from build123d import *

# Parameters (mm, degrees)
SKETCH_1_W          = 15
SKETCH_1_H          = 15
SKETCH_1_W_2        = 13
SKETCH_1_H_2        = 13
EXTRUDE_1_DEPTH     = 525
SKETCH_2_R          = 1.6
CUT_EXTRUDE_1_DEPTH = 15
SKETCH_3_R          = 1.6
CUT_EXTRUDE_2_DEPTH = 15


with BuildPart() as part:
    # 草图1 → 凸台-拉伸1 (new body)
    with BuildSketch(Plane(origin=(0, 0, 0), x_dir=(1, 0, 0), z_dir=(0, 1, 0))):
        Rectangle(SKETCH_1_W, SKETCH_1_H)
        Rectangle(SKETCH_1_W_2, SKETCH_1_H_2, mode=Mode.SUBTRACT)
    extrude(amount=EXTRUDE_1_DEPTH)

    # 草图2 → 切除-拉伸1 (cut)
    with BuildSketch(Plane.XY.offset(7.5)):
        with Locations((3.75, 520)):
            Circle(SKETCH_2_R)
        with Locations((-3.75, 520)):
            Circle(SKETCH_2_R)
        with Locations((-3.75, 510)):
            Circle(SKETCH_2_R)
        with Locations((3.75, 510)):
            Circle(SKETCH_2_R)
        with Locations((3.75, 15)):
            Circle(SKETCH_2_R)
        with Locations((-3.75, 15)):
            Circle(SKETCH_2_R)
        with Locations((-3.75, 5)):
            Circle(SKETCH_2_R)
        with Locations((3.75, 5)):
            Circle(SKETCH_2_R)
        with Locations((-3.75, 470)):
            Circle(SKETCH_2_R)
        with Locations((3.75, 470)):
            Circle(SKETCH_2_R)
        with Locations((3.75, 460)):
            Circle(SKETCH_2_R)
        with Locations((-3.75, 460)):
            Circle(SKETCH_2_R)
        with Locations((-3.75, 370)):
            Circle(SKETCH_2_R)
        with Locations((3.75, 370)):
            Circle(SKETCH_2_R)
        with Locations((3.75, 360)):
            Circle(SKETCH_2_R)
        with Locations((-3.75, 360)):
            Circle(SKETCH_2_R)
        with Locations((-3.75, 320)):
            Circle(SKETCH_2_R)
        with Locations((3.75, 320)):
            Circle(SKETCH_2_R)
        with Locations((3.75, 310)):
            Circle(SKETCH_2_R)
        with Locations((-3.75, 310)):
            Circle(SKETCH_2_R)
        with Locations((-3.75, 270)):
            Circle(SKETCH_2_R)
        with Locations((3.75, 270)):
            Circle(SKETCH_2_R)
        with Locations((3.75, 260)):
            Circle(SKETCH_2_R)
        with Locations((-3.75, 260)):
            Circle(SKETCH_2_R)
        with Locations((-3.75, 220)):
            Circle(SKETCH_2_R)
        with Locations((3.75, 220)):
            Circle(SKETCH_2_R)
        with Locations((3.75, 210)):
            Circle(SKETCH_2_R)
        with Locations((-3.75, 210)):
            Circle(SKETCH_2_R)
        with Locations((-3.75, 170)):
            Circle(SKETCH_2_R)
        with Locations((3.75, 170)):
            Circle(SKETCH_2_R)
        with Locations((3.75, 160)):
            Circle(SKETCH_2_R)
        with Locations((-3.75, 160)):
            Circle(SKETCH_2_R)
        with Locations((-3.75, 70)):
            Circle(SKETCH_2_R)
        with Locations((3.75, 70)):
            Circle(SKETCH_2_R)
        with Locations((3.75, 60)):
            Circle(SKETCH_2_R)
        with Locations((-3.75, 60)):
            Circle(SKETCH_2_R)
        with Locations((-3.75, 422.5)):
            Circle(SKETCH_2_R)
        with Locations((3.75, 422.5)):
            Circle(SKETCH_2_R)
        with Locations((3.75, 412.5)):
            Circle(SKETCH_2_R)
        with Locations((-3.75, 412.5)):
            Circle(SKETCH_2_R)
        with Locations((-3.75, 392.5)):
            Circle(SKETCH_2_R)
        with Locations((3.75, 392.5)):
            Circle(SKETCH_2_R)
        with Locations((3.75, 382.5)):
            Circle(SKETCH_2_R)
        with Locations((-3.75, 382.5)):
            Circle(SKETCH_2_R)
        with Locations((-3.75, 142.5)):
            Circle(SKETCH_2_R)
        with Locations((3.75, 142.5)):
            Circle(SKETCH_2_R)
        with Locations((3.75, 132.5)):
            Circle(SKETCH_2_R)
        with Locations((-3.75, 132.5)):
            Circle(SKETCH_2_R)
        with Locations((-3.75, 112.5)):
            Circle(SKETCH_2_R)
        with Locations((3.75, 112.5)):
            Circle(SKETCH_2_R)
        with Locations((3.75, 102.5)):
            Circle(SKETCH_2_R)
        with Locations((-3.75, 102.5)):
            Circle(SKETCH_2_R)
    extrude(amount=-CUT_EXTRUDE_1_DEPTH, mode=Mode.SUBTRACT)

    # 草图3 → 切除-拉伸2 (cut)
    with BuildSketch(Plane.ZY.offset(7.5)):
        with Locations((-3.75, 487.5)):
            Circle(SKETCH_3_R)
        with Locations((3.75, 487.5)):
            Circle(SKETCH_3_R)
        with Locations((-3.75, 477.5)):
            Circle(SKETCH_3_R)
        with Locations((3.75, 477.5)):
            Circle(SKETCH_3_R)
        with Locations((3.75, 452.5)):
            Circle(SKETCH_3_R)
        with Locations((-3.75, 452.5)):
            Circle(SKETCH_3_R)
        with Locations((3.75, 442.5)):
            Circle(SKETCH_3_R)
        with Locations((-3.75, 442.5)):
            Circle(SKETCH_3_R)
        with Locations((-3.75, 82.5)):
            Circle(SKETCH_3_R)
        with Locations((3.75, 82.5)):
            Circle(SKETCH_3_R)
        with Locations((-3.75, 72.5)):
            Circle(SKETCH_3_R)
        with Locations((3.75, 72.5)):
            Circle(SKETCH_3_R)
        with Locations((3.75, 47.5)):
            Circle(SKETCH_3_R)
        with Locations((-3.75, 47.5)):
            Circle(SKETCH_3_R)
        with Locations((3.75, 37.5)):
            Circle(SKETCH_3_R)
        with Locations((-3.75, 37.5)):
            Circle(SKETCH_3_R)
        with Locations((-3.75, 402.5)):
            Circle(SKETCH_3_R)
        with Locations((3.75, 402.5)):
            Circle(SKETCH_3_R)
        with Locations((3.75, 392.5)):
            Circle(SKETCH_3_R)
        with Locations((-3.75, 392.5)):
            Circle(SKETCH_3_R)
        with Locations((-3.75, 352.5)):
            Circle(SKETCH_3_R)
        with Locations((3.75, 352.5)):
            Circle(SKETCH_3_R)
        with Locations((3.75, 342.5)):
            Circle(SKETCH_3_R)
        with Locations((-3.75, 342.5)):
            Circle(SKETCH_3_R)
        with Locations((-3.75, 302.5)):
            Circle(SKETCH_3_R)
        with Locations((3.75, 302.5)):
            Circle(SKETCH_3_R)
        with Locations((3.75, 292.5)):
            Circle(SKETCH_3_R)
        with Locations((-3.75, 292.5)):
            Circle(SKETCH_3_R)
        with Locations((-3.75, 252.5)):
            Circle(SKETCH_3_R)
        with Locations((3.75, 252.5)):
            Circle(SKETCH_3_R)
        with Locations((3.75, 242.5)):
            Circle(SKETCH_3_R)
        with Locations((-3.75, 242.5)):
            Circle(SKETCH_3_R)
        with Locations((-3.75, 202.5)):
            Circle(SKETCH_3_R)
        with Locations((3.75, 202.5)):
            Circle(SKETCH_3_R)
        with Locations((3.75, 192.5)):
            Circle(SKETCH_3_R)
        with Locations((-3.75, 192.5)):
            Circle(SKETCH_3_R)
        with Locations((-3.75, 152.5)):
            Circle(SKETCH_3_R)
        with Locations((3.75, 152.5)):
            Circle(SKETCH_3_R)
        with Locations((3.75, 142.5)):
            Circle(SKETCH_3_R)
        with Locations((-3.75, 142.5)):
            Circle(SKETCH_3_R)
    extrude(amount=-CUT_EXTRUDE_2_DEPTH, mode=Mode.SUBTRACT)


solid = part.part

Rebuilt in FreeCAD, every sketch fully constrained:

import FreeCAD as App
import Part
import Sketcher
from FreeCAD import Vector


def add_polygon(sketch, points):
    """Adds a closed chain of lines whose ends are joined by coincident constraints."""
    first, n = sketch.GeometryCount, len(points)
    for a, b in zip(points, points[1:] + points[:1]):
        sketch.addGeometry(Part.LineSegment(App.Vector(*a, 0), App.Vector(*b, 0)), False)
    for i in range(n):
        sketch.addConstraint(Sketcher.Constraint("Coincident", first + i, 2, first + (i + 1) % n, 1))

doc = App.newDocument("Part")
body = doc.addObject("PartDesign::Body", "Body")

sketch1 = doc.addObject("Sketcher::SketchObject", "Sketch")
body.addObject(sketch1)
sketch1.AttachmentSupport = (doc.XZ_Plane, [""])
sketch1.MapMode = "FlatFace"
add_polygon(sketch1, [(-8, -8), (-8, 8), (8, 8), (8, -8)])
add_polygon(sketch1, [(6, 6), (-6, 6), (-6, -6), (6, -6)])
sketch1.addConstraint([
    Sketcher.Constraint("Vertical", 0),
    Sketcher.Constraint("Horizontal", 1),
    Sketcher.Constraint("Vertical", 2),
    Sketcher.Constraint("Horizontal", 3),
    Sketcher.Constraint("Horizontal", 4),
    Sketcher.Constraint("Vertical", 5),
    Sketcher.Constraint("Horizontal", 6),
    Sketcher.Constraint("Vertical", 7),
    Sketcher.Constraint("Symmetric", 0, 2, 2, 2, -1, 1),
    Sketcher.Constraint("Symmetric", 4, 2, 6, 2, -1, 1),
    Sketcher.Constraint("Equal", 3, 0),
    Sketcher.Constraint("Equal", 6, 5),
    Sketcher.Constraint("DistanceX", 1, 1, 1, 2, 15.0),
    Sketcher.Constraint("DistanceX", 4, 2, 4, 1, 13.0),
])
pad1 = doc.addObject("PartDesign::Pad", "Pad")
body.addObject(pad1)
pad1.Profile = sketch1
pad1.Length = 525
pad1.Reversed = True

sketch2 = doc.addObject("Sketcher::SketchObject", "Sketch001")
body.addObject(sketch2)
sketch2.AttachmentSupport = (doc.XY_Plane, [""])
sketch2.MapMode = "FlatFace"
sketch2.AttachmentOffset = App.Placement(Vector(0, 0, 7.5), App.Rotation())
sketch2.addGeometry([
    Part.Circle(Vector(3.8, 520, 0), Vector(0, 0, 1), 1.6),
    Part.Circle(Vector(-3.8, 520, 0), Vector(0, 0, 1), 1.6),
    Part.Circle(Vector(-3.8, 510, 0), Vector(0, 0, 1), 1.6),
    Part.Circle(Vector(3.8, 510, 0), Vector(0, 0, 1), 1.6),
    Part.Circle(Vector(3.8, 15, 0), Vector(0, 0, 1), 1.6),
    Part.Circle(Vector(-3.8, 15, 0), Vector(0, 0, 1), 1.6),
    Part.Circle(Vector(-3.8, 5, 0), Vector(0, 0, 1), 1.6),
    Part.Circle(Vector(3.8, 5, 0), Vector(0, 0, 1), 1.6),
    Part.Circle(Vector(-3.8, 470, 0), Vector(0, 0, 1), 1.6),
    Part.Circle(Vector(3.8, 470, 0), Vector(0, 0, 1), 1.6),
    Part.Circle(Vector(3.8, 460, 0), Vector(0, 0, 1), 1.6),
    Part.Circle(Vector(-3.8, 460, 0), Vector(0, 0, 1), 1.6),
    Part.Circle(Vector(-3.8, 370, 0), Vector(0, 0, 1), 1.6),
    Part.Circle(Vector(3.8, 370, 0), Vector(0, 0, 1), 1.6),
    Part.Circle(Vector(3.8, 360, 0), Vector(0, 0, 1), 1.6),
    Part.Circle(Vector(-3.8, 360, 0), Vector(0, 0, 1), 1.6),
    Part.Circle(Vector(-3.8, 320, 0), Vector(0, 0, 1), 1.6),
    Part.Circle(Vector(3.8, 320, 0), Vector(0, 0, 1), 1.6),
    Part.Circle(Vector(3.8, 310, 0), Vector(0, 0, 1), 1.6),
    Part.Circle(Vector(-3.8, 310, 0), Vector(0, 0, 1), 1.6),
    Part.Circle(Vector(-3.8, 270, 0), Vector(0, 0, 1), 1.6),
    Part.Circle(Vector(3.8, 270, 0), Vector(0, 0, 1), 1.6),
    Part.Circle(Vector(3.8, 260, 0), Vector(0, 0, 1), 1.6),
    Part.Circle(Vector(-3.8, 260, 0), Vector(0, 0, 1), 1.6),
    Part.Circle(Vector(-3.8, 220, 0), Vector(0, 0, 1), 1.6),
    Part.Circle(Vector(3.8, 220, 0), Vector(0, 0, 1), 1.6),
    Part.Circle(Vector(3.8, 210, 0), Vector(0, 0, 1), 1.6),
    Part.Circle(Vector(-3.8, 210, 0), Vector(0, 0, 1), 1.6),
    Part.Circle(Vector(-3.8, 170, 0), Vector(0, 0, 1), 1.6),
    Part.Circle(Vector(3.8, 170, 0), Vector(0, 0, 1), 1.6),
    Part.Circle(Vector(3.8, 160, 0), Vector(0, 0, 1), 1.6),
    Part.Circle(Vector(-3.8, 160, 0), Vector(0, 0, 1), 1.6),
    Part.Circle(Vector(-3.8, 70, 0), Vector(0, 0, 1), 1.6),
    Part.Circle(Vector(3.8, 70, 0), Vector(0, 0, 1), 1.6),
    Part.Circle(Vector(3.8, 60, 0), Vector(0, 0, 1), 1.6),
    Part.Circle(Vector(-3.8, 60, 0), Vector(0, 0, 1), 1.6),
    Part.Circle(Vector(-3.8, 422.5, 0), Vector(0, 0, 1), 1.6),
    Part.Circle(Vector(3.8, 422.5, 0), Vector(0, 0, 1), 1.6),
    Part.Circle(Vector(3.8, 412.5, 0), Vector(0, 0, 1), 1.6),
    Part.Circle(Vector(-3.8, 412.5, 0), Vector(0, 0, 1), 1.6),
    Part.Circle(Vector(-3.8, 392.5, 0), Vector(0, 0, 1), 1.6),
    Part.Circle(Vector(3.8, 392.5, 0), Vector(0, 0, 1), 1.6),
    Part.Circle(Vector(3.8, 382.5, 0), Vector(0, 0, 1), 1.6),
    Part.Circle(Vector(-3.8, 382.5, 0), Vector(0, 0, 1), 1.6),
    Part.Circle(Vector(-3.8, 142.5, 0), Vector(0, 0, 1), 1.6),
    Part.Circle(Vector(3.8, 142.5, 0), Vector(0, 0, 1), 1.6),
    Part.Circle(Vector(3.8, 132.5, 0), Vector(0, 0, 1), 1.6),
    Part.Circle(Vector(-3.8, 132.5, 0), Vector(0, 0, 1), 1.6),
    Part.Circle(Vector(-3.8, 112.5, 0), Vector(0, 0, 1), 1.6),
    Part.Circle(Vector(3.8, 112.5, 0), Vector(0, 0, 1), 1.6),
    Part.Circle(Vector(3.8, 102.5, 0), Vector(0, 0, 1), 1.6),
    Part.Circle(Vector(-3.8, 102.5, 0), Vector(0, 0, 1), 1.6),
], False)
sketch2.addConstraint([
    Sketcher.Constraint("Equal", 0, 1),
    Sketcher.Constraint("Equal", 1, 2),
    Sketcher.Constraint("Equal", 2, 3),
    Sketcher.Constraint("Equal", 3, 4),
    Sketcher.Constraint("Equal", 4, 5),
    Sketcher.Constraint("Equal", 5, 6),
    Sketcher.Constraint("Equal", 6, 7),
    Sketcher.Constraint("Equal", 7, 8),
    Sketcher.Constraint("Equal", 8, 9),
    Sketcher.Constraint("Equal", 9, 10),
    Sketcher.Constraint("Equal", 10, 11),
    Sketcher.Constraint("Equal", 11, 12),
    Sketcher.Constraint("Equal", 12, 13),
    Sketcher.Constraint("Equal", 13, 14),
    Sketcher.Constraint("Equal", 14, 15),
    Sketcher.Constraint("Equal", 15, 16),
    Sketcher.Constraint("Equal", 16, 17),
    Sketcher.Constraint("Equal", 17, 18),
    Sketcher.Constraint("Equal", 18, 19),
    Sketcher.Constraint("Equal", 19, 20),
    Sketcher.Constraint("Equal", 20, 21),
    Sketcher.Constraint("Equal", 21, 22),
    Sketcher.Constraint("Equal", 22, 23),
    Sketcher.Constraint("Equal", 23, 24),
    Sketcher.Constraint("Equal", 24, 25),
    Sketcher.Constraint("Equal", 25, 26),
    Sketcher.Constraint("Equal", 26, 27),
    Sketcher.Constraint("Equal", 27, 28),
    Sketcher.Constraint("Equal", 28, 29),
    Sketcher.Constraint("Equal", 29, 30),
    Sketcher.Constraint("Equal", 30, 31),
    Sketcher.Constraint("Equal", 31, 32),
    Sketcher.Constraint("Equal", 32, 33),
    Sketcher.Constraint("Equal", 33, 34),
    Sketcher.Constraint("Equal", 34, 35),
    Sketcher.Constraint("Equal", 35, 36),
    Sketcher.Constraint("Equal", 36, 37),
    Sketcher.Constraint("Equal", 37, 38),
    Sketcher.Constraint("Equal", 38, 39),
    Sketcher.Constraint("Equal", 39, 40),
    Sketcher.Constraint("Equal", 40, 41),
    Sketcher.Constraint("Equal", 41, 42),
    Sketcher.Constraint("Equal", 42, 43),
    Sketcher.Constraint("Equal", 43, 44),
    Sketcher.Constraint("Equal", 44, 45),
    Sketcher.Constraint("Equal", 45, 46),
    Sketcher.Constraint("Equal", 46, 47),
    Sketcher.Constraint("Equal", 47, 48),
    Sketcher.Constraint("Equal", 48, 49),
    Sketcher.Constraint("Equal", 49, 50),
    Sketcher.Constraint("Equal", 50, 51),
    Sketcher.Constraint("Symmetric", 0, 3, 1, 3, -2),
    Sketcher.Constraint("Symmetric", 2, 3, 3, 3, -2),
    Sketcher.Constraint("Symmetric", 4, 3, 5, 3, -2),
    Sketcher.Constraint("Symmetric", 6, 3, 7, 3, -2),
    Sketcher.Constraint("Symmetric", 8, 3, 9, 3, -2),
    Sketcher.Constraint("Symmetric", 10, 3, 11, 3, -2),
    Sketcher.Constraint("Symmetric", 12, 3, 13, 3, -2),
    Sketcher.Constraint("Symmetric", 14, 3, 15, 3, -2),
    Sketcher.Constraint("Symmetric", 16, 3, 17, 3, -2),
    Sketcher.Constraint("Symmetric", 18, 3, 19, 3, -2),
    Sketcher.Constraint("Symmetric", 20, 3, 21, 3, -2),
    Sketcher.Constraint("Symmetric", 22, 3, 23, 3, -2),
    Sketcher.Constraint("Symmetric", 24, 3, 25, 3, -2),
    Sketcher.Constraint("Symmetric", 26, 3, 27, 3, -2),
    Sketcher.Constraint("Symmetric", 28, 3, 29, 3, -2),
    Sketcher.Constraint("Symmetric", 30, 3, 31, 3, -2),
    Sketcher.Constraint("Symmetric", 32, 3, 33, 3, -2),
    Sketcher.Constraint("Symmetric", 34, 3, 35, 3, -2),
    Sketcher.Constraint("Symmetric", 36, 3, 37, 3, -2),
    Sketcher.Constraint("Symmetric", 38, 3, 39, 3, -2),
    Sketcher.Constraint("Symmetric", 40, 3, 41, 3, -2),
    Sketcher.Constraint("Symmetric", 42, 3, 43, 3, -2),
    Sketcher.Constraint("Symmetric", 44, 3, 45, 3, -2),
    Sketcher.Constraint("Symmetric", 46, 3, 47, 3, -2),
    Sketcher.Constraint("Symmetric", 48, 3, 49, 3, -2),
    Sketcher.Constraint("Symmetric", 50, 3, 51, 3, -2),
    Sketcher.Constraint("Vertical", 1, 3, 2, 3),
    Sketcher.Constraint("Vertical", 3, 3, 4, 3),
    Sketcher.Constraint("Vertical", 5, 3, 6, 3),
    Sketcher.Constraint("Vertical", 6, 3, 8, 3),
    Sketcher.Constraint("Vertical", 9, 3, 10, 3),
    Sketcher.Constraint("Vertical", 11, 3, 12, 3),
    Sketcher.Constraint("Vertical", 13, 3, 14, 3),
    Sketcher.Constraint("Vertical", 15, 3, 16, 3),
    Sketcher.Constraint("Vertical", 17, 3, 18, 3),
    Sketcher.Constraint("Vertical", 19, 3, 20, 3),
    Sketcher.Constraint("Vertical", 21, 3, 22, 3),
    Sketcher.Constraint("Vertical", 23, 3, 24, 3),
    Sketcher.Constraint("Vertical", 25, 3, 26, 3),
    Sketcher.Constraint("Vertical", 27, 3, 28, 3),
    Sketcher.Constraint("Vertical", 29, 3, 30, 3),
    Sketcher.Constraint("Vertical", 31, 3, 32, 3),
    Sketcher.Constraint("Vertical", 33, 3, 34, 3),
    Sketcher.Constraint("Vertical", 35, 3, 36, 3),
    Sketcher.Constraint("Vertical", 37, 3, 38, 3),
    Sketcher.Constraint("Vertical", 39, 3, 40, 3),
    Sketcher.Constraint("Vertical", 41, 3, 42, 3),
    Sketcher.Constraint("Vertical", 43, 3, 44, 3),
    Sketcher.Constraint("Vertical", 45, 3, 46, 3),
    Sketcher.Constraint("Vertical", 47, 3, 48, 3),
    Sketcher.Constraint("Vertical", 49, 3, 50, 3),
    Sketcher.Constraint("Diameter", 0, 3.2),
    Sketcher.Constraint("DistanceY", -1, 1, 0, 3, 520.0),
    Sketcher.Constraint("DistanceY", -1, 1, 2, 3, 510.0),
    Sketcher.Constraint("DistanceY", -1, 1, 4, 3, 15.0),
    Sketcher.Constraint("DistanceY", -1, 1, 6, 3, 5.0),
    Sketcher.Constraint("DistanceY", -1, 1, 8, 3, 470.0),
    Sketcher.Constraint("DistanceY", -1, 1, 10, 3, 460.0),
    Sketcher.Constraint("DistanceY", -1, 1, 12, 3, 370.0),
    Sketcher.Constraint("DistanceY", -1, 1, 14, 3, 360.0),
    Sketcher.Constraint("DistanceY", -1, 1, 16, 3, 320.0),
    Sketcher.Constraint("DistanceY", -1, 1, 18, 3, 310.0),
    Sketcher.Constraint("DistanceY", -1, 1, 20, 3, 270.0),
    Sketcher.Constraint("DistanceY", -1, 1, 22, 3, 260.0),
    Sketcher.Constraint("DistanceY", -1, 1, 24, 3, 220.0),
    Sketcher.Constraint("DistanceY", -1, 1, 26, 3, 210.0),
    Sketcher.Constraint("DistanceY", -1, 1, 28, 3, 170.0),
    Sketcher.Constraint("DistanceY", -1, 1, 30, 3, 160.0),
    Sketcher.Constraint("DistanceY", -1, 1, 32, 3, 70.0),
    Sketcher.Constraint("DistanceY", -1, 1, 34, 3, 60.0),
    Sketcher.Constraint("DistanceY", 38, 3, 37, 3, 10.0),
    Sketcher.Constraint("DistanceY", 40, 3, 39, 3, 20.0),
    Sketcher.Constraint("DistanceY", 42, 3, 41, 3, 10.0),
    Sketcher.Constraint("DistanceY", 46, 3, 45, 3, 10.0),
    Sketcher.Constraint("DistanceY", 48, 3, 47, 3, 20.0),
    Sketcher.Constraint("DistanceY", 50, 3, 49, 3, 10.0),
    Sketcher.Constraint("DistanceY", -1, 1, 36, 3, 422.5),
    Sketcher.Constraint("DistanceY", -1, 1, 44, 3, 142.5),
    Sketcher.Constraint("DistanceX", 1, 3, 0, 3, 7.5),
])
pocket1 = doc.addObject("PartDesign::Pocket", "Pocket")
body.addObject(pocket1)
pocket1.Profile = sketch2
pocket1.Length = 15

sketch3 = doc.addObject("Sketcher::SketchObject", "Sketch002")
body.addObject(sketch3)
sketch3.AttachmentSupport = (doc.YZ_Plane, [""])
sketch3.MapMode = "FlatFace"
sketch3.AttachmentOffset = App.Placement(Vector(0, 0, -7.5), App.Rotation())
sketch3.addGeometry([
    Part.Circle(Vector(487.5, -3.8, 0), Vector(0, 0, 1), 1.6),
    Part.Circle(Vector(487.5, 3.8, 0), Vector(0, 0, 1), 1.6),
    Part.Circle(Vector(477.5, -3.8, 0), Vector(0, 0, 1), 1.6),
    Part.Circle(Vector(477.5, 3.8, 0), Vector(0, 0, 1), 1.6),
    Part.Circle(Vector(452.5, 3.8, 0), Vector(0, 0, 1), 1.6),
    Part.Circle(Vector(452.5, -3.8, 0), Vector(0, 0, 1), 1.6),
    Part.Circle(Vector(442.5, 3.8, 0), Vector(0, 0, 1), 1.6),
    Part.Circle(Vector(442.5, -3.8, 0), Vector(0, 0, 1), 1.6),
    Part.Circle(Vector(82.5, -3.8, 0), Vector(0, 0, 1), 1.6),
    Part.Circle(Vector(82.5, 3.8, 0), Vector(0, 0, 1), 1.6),
    Part.Circle(Vector(72.5, -3.8, 0), Vector(0, 0, 1), 1.6),
    Part.Circle(Vector(72.5, 3.8, 0), Vector(0, 0, 1), 1.6),
    Part.Circle(Vector(47.5, 3.8, 0), Vector(0, 0, 1), 1.6),
    Part.Circle(Vector(47.5, -3.8, 0), Vector(0, 0, 1), 1.6),
    Part.Circle(Vector(37.5, 3.8, 0), Vector(0, 0, 1), 1.6),
    Part.Circle(Vector(37.5, -3.8, 0), Vector(0, 0, 1), 1.6),
    Part.Circle(Vector(402.5, -3.8, 0), Vector(0, 0, 1), 1.6),
    Part.Circle(Vector(402.5, 3.8, 0), Vector(0, 0, 1), 1.6),
    Part.Circle(Vector(392.5, 3.8, 0), Vector(0, 0, 1), 1.6),
    Part.Circle(Vector(392.5, -3.8, 0), Vector(0, 0, 1), 1.6),
    Part.Circle(Vector(352.5, -3.8, 0), Vector(0, 0, 1), 1.6),
    Part.Circle(Vector(352.5, 3.8, 0), Vector(0, 0, 1), 1.6),
    Part.Circle(Vector(342.5, 3.8, 0), Vector(0, 0, 1), 1.6),
    Part.Circle(Vector(342.5, -3.8, 0), Vector(0, 0, 1), 1.6),
    Part.Circle(Vector(302.5, -3.8, 0), Vector(0, 0, 1), 1.6),
    Part.Circle(Vector(302.5, 3.8, 0), Vector(0, 0, 1), 1.6),
    Part.Circle(Vector(292.5, 3.8, 0), Vector(0, 0, 1), 1.6),
    Part.Circle(Vector(292.5, -3.8, 0), Vector(0, 0, 1), 1.6),
    Part.Circle(Vector(252.5, -3.8, 0), Vector(0, 0, 1), 1.6),
    Part.Circle(Vector(252.5, 3.8, 0), Vector(0, 0, 1), 1.6),
    Part.Circle(Vector(242.5, 3.8, 0), Vector(0, 0, 1), 1.6),
    Part.Circle(Vector(242.5, -3.8, 0), Vector(0, 0, 1), 1.6),
    Part.Circle(Vector(202.5, -3.8, 0), Vector(0, 0, 1), 1.6),
    Part.Circle(Vector(202.5, 3.8, 0), Vector(0, 0, 1), 1.6),
    Part.Circle(Vector(192.5, 3.8, 0), Vector(0, 0, 1), 1.6),
    Part.Circle(Vector(192.5, -3.8, 0), Vector(0, 0, 1), 1.6),
    Part.Circle(Vector(152.5, -3.8, 0), Vector(0, 0, 1), 1.6),
    Part.Circle(Vector(152.5, 3.8, 0), Vector(0, 0, 1), 1.6),
    Part.Circle(Vector(142.5, 3.8, 0), Vector(0, 0, 1), 1.6),
    Part.Circle(Vector(142.5, -3.8, 0), Vector(0, 0, 1), 1.6),
], False)
sketch3.addConstraint([
    Sketcher.Constraint("Equal", 0, 1),
    Sketcher.Constraint("Equal", 1, 2),
    Sketcher.Constraint("Equal", 2, 3),
    Sketcher.Constraint("Equal", 3, 4),
    Sketcher.Constraint("Equal", 4, 5),
    Sketcher.Constraint("Equal", 5, 6),
    Sketcher.Constraint("Equal", 6, 7),
    Sketcher.Constraint("Equal", 7, 8),
    Sketcher.Constraint("Equal", 8, 9),
    Sketcher.Constraint("Equal", 9, 10),
    Sketcher.Constraint("Equal", 10, 11),
    Sketcher.Constraint("Equal", 11, 12),
    Sketcher.Constraint("Equal", 12, 13),
    Sketcher.Constraint("Equal", 13, 14),
    Sketcher.Constraint("Equal", 14, 15),
    Sketcher.Constraint("Equal", 15, 16),
    Sketcher.Constraint("Equal", 16, 17),
    Sketcher.Constraint("Equal", 17, 18),
    Sketcher.Constraint("Equal", 18, 19),
    Sketcher.Constraint("Equal", 19, 20),
    Sketcher.Constraint("Equal", 20, 21),
    Sketcher.Constraint("Equal", 21, 22),
    Sketcher.Constraint("Equal", 22, 23),
    Sketcher.Constraint("Equal", 23, 24),
    Sketcher.Constraint("Equal", 24, 25),
    Sketcher.Constraint("Equal", 25, 26),
    Sketcher.Constraint("Equal", 26, 27),
    Sketcher.Constraint("Equal", 27, 28),
    Sketcher.Constraint("Equal", 28, 29),
    Sketcher.Constraint("Equal", 29, 30),
    Sketcher.Constraint("Equal", 30, 31),
    Sketcher.Constraint("Equal", 31, 32),
    Sketcher.Constraint("Equal", 32, 33),
    Sketcher.Constraint("Equal", 33, 34),
    Sketcher.Constraint("Equal", 34, 35),
    Sketcher.Constraint("Equal", 35, 36),
    Sketcher.Constraint("Equal", 36, 37),
    Sketcher.Constraint("Equal", 37, 38),
    Sketcher.Constraint("Equal", 38, 39),
    Sketcher.Constraint("Symmetric", 0, 3, 1, 3, -1),
    Sketcher.Constraint("Symmetric", 2, 3, 3, 3, -1),
    Sketcher.Constraint("Symmetric", 4, 3, 5, 3, -1),
    Sketcher.Constraint("Symmetric", 6, 3, 7, 3, -1),
    Sketcher.Constraint("Symmetric", 8, 3, 9, 3, -1),
    Sketcher.Constraint("Symmetric", 10, 3, 11, 3, -1),
    Sketcher.Constraint("Symmetric", 12, 3, 13, 3, -1),
    Sketcher.Constraint("Symmetric", 14, 3, 15, 3, -1),
    Sketcher.Constraint("Symmetric", 16, 3, 17, 3, -1),
    Sketcher.Constraint("Symmetric", 18, 3, 19, 3, -1),
    Sketcher.Constraint("Symmetric", 20, 3, 21, 3, -1),
    Sketcher.Constraint("Symmetric", 22, 3, 23, 3, -1),
    Sketcher.Constraint("Symmetric", 24, 3, 25, 3, -1),
    Sketcher.Constraint("Symmetric", 26, 3, 27, 3, -1),
    Sketcher.Constraint("Symmetric", 28, 3, 29, 3, -1),
    Sketcher.Constraint("Symmetric", 30, 3, 31, 3, -1),
    Sketcher.Constraint("Symmetric", 32, 3, 33, 3, -1),
    Sketcher.Constraint("Symmetric", 34, 3, 35, 3, -1),
    Sketcher.Constraint("Symmetric", 36, 3, 37, 3, -1),
    Sketcher.Constraint("Symmetric", 38, 3, 39, 3, -1),
    Sketcher.Constraint("Horizontal", 0, 3, 2, 3),
    Sketcher.Constraint("Horizontal", 3, 3, 4, 3),
    Sketcher.Constraint("Horizontal", 4, 3, 6, 3),
    Sketcher.Constraint("Horizontal", 7, 3, 8, 3),
    Sketcher.Constraint("Horizontal", 8, 3, 10, 3),
    Sketcher.Constraint("Horizontal", 11, 3, 12, 3),
    Sketcher.Constraint("Horizontal", 12, 3, 14, 3),
    Sketcher.Constraint("Horizontal", 15, 3, 16, 3),
    Sketcher.Constraint("Horizontal", 17, 3, 18, 3),
    Sketcher.Constraint("Horizontal", 19, 3, 20, 3),
    Sketcher.Constraint("Horizontal", 21, 3, 22, 3),
    Sketcher.Constraint("Horizontal", 23, 3, 24, 3),
    Sketcher.Constraint("Horizontal", 25, 3, 26, 3),
    Sketcher.Constraint("Horizontal", 27, 3, 28, 3),
    Sketcher.Constraint("Horizontal", 29, 3, 30, 3),
    Sketcher.Constraint("Horizontal", 31, 3, 32, 3),
    Sketcher.Constraint("Horizontal", 33, 3, 34, 3),
    Sketcher.Constraint("Horizontal", 35, 3, 36, 3),
    Sketcher.Constraint("Horizontal", 37, 3, 38, 3),
    Sketcher.Constraint("Diameter", 0, 3.2),
    Sketcher.Constraint("DistanceX", 2, 3, 0, 3, 10.0),
    Sketcher.Constraint("DistanceX", 4, 3, 3, 3, 25.0),
    Sketcher.Constraint("DistanceX", 6, 3, 4, 3, 10.0),
    Sketcher.Constraint("DistanceX", 8, 3, 7, 3, 360.0),
    Sketcher.Constraint("DistanceX", 10, 3, 8, 3, 10.0),
    Sketcher.Constraint("DistanceX", 12, 3, 11, 3, 25.0),
    Sketcher.Constraint("DistanceX", 14, 3, 12, 3, 10.0),
    Sketcher.Constraint("DistanceX", 16, 3, 7, 3, 40.0),
    Sketcher.Constraint("DistanceX", 18, 3, 17, 3, 10.0),
    Sketcher.Constraint("DistanceX", 20, 3, 19, 3, 40.0),
    Sketcher.Constraint("DistanceX", 22, 3, 21, 3, 10.0),
    Sketcher.Constraint("DistanceX", 24, 3, 23, 3, 40.0),
    Sketcher.Constraint("DistanceX", 26, 3, 25, 3, 10.0),
    Sketcher.Constraint("DistanceX", 28, 3, 27, 3, 40.0),
    Sketcher.Constraint("DistanceX", 30, 3, 29, 3, 10.0),
    Sketcher.Constraint("DistanceX", 32, 3, 31, 3, 40.0),
    Sketcher.Constraint("DistanceX", 34, 3, 33, 3, 10.0),
    Sketcher.Constraint("DistanceX", 36, 3, 35, 3, 40.0),
    Sketcher.Constraint("DistanceX", 38, 3, 37, 3, 10.0),
    Sketcher.Constraint("DistanceX", -1, 1, 0, 3, 487.5),
    Sketcher.Constraint("DistanceY", 0, 3, 1, 3, 7.5),
])
pocket2 = doc.addObject("PartDesign::Pocket", "Pocket001")
body.addObject(pocket2)
pocket2.Profile = sketch3
pocket2.Length = 15
pocket2.Reversed = True

doc.recompute()
